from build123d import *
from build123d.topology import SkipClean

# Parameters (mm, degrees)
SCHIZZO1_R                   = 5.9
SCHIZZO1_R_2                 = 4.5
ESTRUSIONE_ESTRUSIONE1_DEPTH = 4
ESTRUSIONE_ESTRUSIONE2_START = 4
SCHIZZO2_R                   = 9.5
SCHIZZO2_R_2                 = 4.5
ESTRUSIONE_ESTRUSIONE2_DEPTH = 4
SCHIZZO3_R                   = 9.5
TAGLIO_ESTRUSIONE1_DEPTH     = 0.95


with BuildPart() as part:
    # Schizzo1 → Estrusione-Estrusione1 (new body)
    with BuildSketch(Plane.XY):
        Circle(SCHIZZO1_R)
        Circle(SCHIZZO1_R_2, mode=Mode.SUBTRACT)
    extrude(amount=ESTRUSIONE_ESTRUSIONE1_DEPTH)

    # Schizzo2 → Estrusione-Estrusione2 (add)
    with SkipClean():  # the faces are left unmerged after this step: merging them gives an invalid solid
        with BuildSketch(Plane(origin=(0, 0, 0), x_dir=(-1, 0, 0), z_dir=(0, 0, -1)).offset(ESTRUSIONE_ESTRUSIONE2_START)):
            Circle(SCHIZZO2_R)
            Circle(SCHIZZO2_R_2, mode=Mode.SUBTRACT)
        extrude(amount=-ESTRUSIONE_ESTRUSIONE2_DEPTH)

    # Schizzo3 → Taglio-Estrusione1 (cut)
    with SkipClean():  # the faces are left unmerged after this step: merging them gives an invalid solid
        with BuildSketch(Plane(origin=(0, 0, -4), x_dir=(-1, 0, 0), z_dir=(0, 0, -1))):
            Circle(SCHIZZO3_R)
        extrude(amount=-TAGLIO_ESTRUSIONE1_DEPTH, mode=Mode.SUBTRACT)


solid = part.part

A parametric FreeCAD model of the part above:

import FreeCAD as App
import Part
import Sketcher
from FreeCAD import Vector

doc = App.newDocument("Part")
body = doc.addObject("PartDesign::Body", "Body")

# Sketch on XY plane
sketch1 = body.newObject("Sketcher::SketchObject", "Sketch")
sketch1.AttachmentSupport = (doc.getObject("XY_Plane"), [""])
sketch1.MapMode = "FlatFace"
sketch1.addGeometry(Part.Circle(Vector(0, 0, 0), Vector(0, 0, 1), 5.9), False)
sketch1.addGeometry(Part.Circle(Vector(0, 0, 0), Vector(0, 0, 1), 4.5), False)
sketch1.addConstraint(Sketcher.Constraint("Coincident", 0, 3, -1, 1))
sketch1.addConstraint(Sketcher.Constraint("Coincident", 1, 3, -1, 1))
sketch1.addConstraint(Sketcher.Constraint("Diameter", 1, 9.0))
sketch1.addConstraint(Sketcher.Constraint("Diameter", 0, 11.8))
pad1 = body.newObject("PartDesign::Pad", "Pad")
pad1.Profile = sketch1
pad1.Length = 4

# Sketch on XY plane
sketch2 = body.newObject("Sketcher::SketchObject", "Sketch001")
sketch2.AttachmentSupport = (doc.getObject("XY_Plane"), [""])
sketch2.MapMode = "FlatFace"
sketch2.AttachmentOffset = App.Placement(Vector(0, 0, -4), App.Rotation())
sketch2.addGeometry(Part.Circle(Vector(0, 0, 0), Vector(0, 0, 1), 9.5), False)
sketch2.addGeometry(Part.Circle(Vector(0, 0, 0), Vector(0, 0, 1), 4.5), False)
sketch2.addConstraint(Sketcher.Constraint("Coincident", 0, 3, -1, 1))
sketch2.addConstraint(Sketcher.Constraint("Coincident", 1, 3, -1, 1))
sketch2.addConstraint(Sketcher.Constraint("Diameter", 0, 19.0))
sketch2.addConstraint(Sketcher.Constraint("Diameter", 1, 9.0))
pad2 = body.newObject("PartDesign::Pad", "Pad001")
pad2.Profile = sketch2
pad2.Length = 4

# Sketch on XY plane
sketch3 = body.newObject("Sketcher::SketchObject", "Sketch002")
sketch3.AttachmentSupport = (doc.getObject("XY_Plane"), [""])
sketch3.MapMode = "FlatFace"
sketch3.AttachmentOffset = App.Placement(Vector(0, 0, -4), App.Rotation())
sketch3.addGeometry(Part.Circle(Vector(0, 0, 0), Vector(0, 0, 1), 10), False)
sketch3.addConstraint(Sketcher.Constraint("Coincident", 0, 3, -1, 1))
sketch3.addConstraint(Sketcher.Constraint("Diameter", 0, 19.0))
pocket1 = body.newObject("PartDesign::Pocket", "Pocket")
pocket1.Profile = sketch3
pocket1.Length = 0.95
pocket1.Reversed = True

doc.recompute()
